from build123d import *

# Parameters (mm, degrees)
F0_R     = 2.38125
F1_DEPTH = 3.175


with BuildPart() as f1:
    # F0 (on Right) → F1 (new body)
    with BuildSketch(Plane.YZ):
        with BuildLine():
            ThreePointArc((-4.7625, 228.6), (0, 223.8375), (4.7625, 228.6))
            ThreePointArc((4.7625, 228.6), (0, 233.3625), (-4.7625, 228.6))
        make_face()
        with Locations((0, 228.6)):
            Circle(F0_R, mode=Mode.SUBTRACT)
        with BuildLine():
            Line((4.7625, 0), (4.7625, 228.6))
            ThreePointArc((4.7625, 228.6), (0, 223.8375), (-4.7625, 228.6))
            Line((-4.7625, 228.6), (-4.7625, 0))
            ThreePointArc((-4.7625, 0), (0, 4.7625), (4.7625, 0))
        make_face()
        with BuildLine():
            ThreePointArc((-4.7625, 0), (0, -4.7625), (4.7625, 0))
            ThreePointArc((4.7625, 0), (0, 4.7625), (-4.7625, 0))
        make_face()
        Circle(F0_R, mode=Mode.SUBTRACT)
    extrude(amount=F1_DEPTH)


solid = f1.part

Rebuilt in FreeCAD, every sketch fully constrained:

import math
import FreeCAD as App
import Part
import Sketcher
from FreeCAD import Vector
Q = App.Units.Quantity

doc = App.newDocument("Part")
body = doc.addObject("PartDesign::Body", "Body")

# Sketch on YZ plane
sketch1 = doc.addObject("Sketcher::SketchObject", "Sketch")
body.addObject(sketch1)
sketch1.AttachmentSupport = (doc.YZ_Plane, [""])
sketch1.MapMode = "FlatFace"
sketch1.addGeometry([
    Part.ArcOfCircle(Part.Circle(Vector(0, 228.6, 0), Vector(0, 0, 1), 4.8), math.radians(0), math.radians(180)),  # 0
    Part.LineSegment(Vector(-4.8, 228.6, 0), Vector(-4.8, 0, 0)),  # 1
    Part.ArcOfCircle(Part.Circle(Vector(0, 0, 0), Vector(0, 0, 1), 4.8), math.radians(180), math.radians(360)),  # 2
    Part.LineSegment(Vector(4.8, 0, 0), Vector(4.8, 228.6, 0)),  # 3
    Part.Circle(Vector(0, 0, 0), Vector(0, 0, 1), 2.4),  # 4
    Part.Circle(Vector(0, 228.6, 0), Vector(0, 0, 1), 2.4),  # 5
], False)
sketch1.addConstraint([
    Sketcher.Constraint("Tangent", 0, 2, 1, 1),
    Sketcher.Constraint("Tangent", 1, 2, 2, 1),
    Sketcher.Constraint("Tangent", 2, 2, 3, 1),
    Sketcher.Constraint("Tangent", 3, 2, 0, 1),
    Sketcher.Constraint("Vertical", 1),
    Sketcher.Constraint("Vertical", 3),
    Sketcher.Constraint("Coincident", 2, 3, -1, 1),
    Sketcher.Constraint("Coincident", 4, 3, -1, 1),
    Sketcher.Constraint("Coincident", 5, 3, 0, 3),
    Sketcher.Constraint("Equal", 4, 5),
    Sketcher.Constraint("DistanceY", 1, 2, 1, 1, Q("9 in")),
    Sketcher.Constraint("Diameter", 4, Q("0.1875 in")),
    Sketcher.Constraint("Radius", 0, Q("0.1875 in")),
])
pad1 = doc.addObject("PartDesign::Pad", "Pad")
body.addObject(pad1)
pad1.Profile = sketch1
pad1.Length = Q("0.125 in")

doc.recompute()
